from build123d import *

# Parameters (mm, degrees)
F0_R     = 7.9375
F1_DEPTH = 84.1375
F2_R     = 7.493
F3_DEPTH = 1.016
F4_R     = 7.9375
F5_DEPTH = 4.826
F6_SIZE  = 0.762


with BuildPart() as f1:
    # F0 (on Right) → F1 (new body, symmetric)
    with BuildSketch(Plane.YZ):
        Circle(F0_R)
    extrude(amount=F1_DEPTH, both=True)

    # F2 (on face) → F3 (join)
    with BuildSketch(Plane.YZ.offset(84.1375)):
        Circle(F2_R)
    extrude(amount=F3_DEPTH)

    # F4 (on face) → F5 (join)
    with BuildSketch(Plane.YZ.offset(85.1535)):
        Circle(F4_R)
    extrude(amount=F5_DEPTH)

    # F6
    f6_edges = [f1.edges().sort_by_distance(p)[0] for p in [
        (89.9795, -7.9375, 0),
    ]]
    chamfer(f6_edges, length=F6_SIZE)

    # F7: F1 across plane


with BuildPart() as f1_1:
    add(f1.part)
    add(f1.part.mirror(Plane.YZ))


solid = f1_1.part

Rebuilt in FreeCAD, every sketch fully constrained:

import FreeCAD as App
import Part
import Sketcher

V = App.Vector
Q = App.Units.Quantity


def edges_at(feature, points):
    """Names of the edges that pass closest to the given points."""
    edges = feature.Shape.Edges
    near = lambda p: min(range(len(edges)), key=lambda i: edges[i].distToShape(Part.Vertex(*p))[0])
    return sorted({f"Edge{near(p) + 1}" for p in points})

doc = App.newDocument("Part")
body = doc.addObject("PartDesign::Body", "Body")

sketch1 = body.newObject("Sketcher::SketchObject", "Sketch")
sketch1.AttachmentSupport = (doc.getObject("YZ_Plane"), [""])
sketch1.MapMode = "FlatFace"
sketch1.addGeometry(Part.Circle(V(0, 0, 0), V(0, 0, 1), 8), False)
sketch1.addConstraint(Sketcher.Constraint("Coincident", 0, 3, -1, 1))
sketch1.addConstraint(Sketcher.Constraint("Diameter", 0, Q("0.625 in")))
pad1 = body.newObject("PartDesign::Pad", "Pad")
pad1.Profile = sketch1
pad1.Length = Q("6.625 in")
pad1.Midplane = True

sketch2 = body.newObject("Sketcher::SketchObject", "Sketch001")
sketch2.AttachmentSupport = (doc.getObject("YZ_Plane"), [""])
sketch2.MapMode = "FlatFace"
sketch2.AttachmentOffset = App.Placement(V(0, 0, 3.3125 * 25.4), App.Rotation())
sketch2.addGeometry(Part.Circle(V(0, 0, 0), V(0, 0, 1), 7), False)
sketch2.addConstraint(Sketcher.Constraint("Coincident", 0, 3, -1, 1))
sketch2.addConstraint(Sketcher.Constraint("Diameter", 0, Q("0.59 in")))
pad2 = body.newObject("PartDesign::Pad", "Pad001")
pad2.Profile = sketch2
pad2.Length = Q("0.04 in")

sketch3 = body.newObject("Sketcher::SketchObject", "Sketch002")
sketch3.AttachmentSupport = (doc.getObject("YZ_Plane"), [""])
sketch3.MapMode = "FlatFace"
sketch3.AttachmentOffset = App.Placement(V(0, 0, 3.3525 * 25.4), App.Rotation())
sketch3.addGeometry(Part.Circle(V(0, 0, 0), V(0, 0, 1), 8), False)
sketch3.addConstraint(Sketcher.Constraint("Coincident", 0, 3, -1, 1))
sketch3.addConstraint(Sketcher.Constraint("Diameter", 0, Q("0.625 in")))
pad3 = body.newObject("PartDesign::Pad", "Pad002")
pad3.Profile = sketch3
pad3.Length = Q("0.19 in")
doc.recompute()

chamfer = body.newObject("PartDesign::Chamfer", "Chamfer")
chamfer.Base = (pad3, edges_at(pad3, [(89.98, -7.938, 0)]))
chamfer.Size = Q("0.03 in")
body2 = doc.addObject("PartDesign::Body", "Body001")
doc.recompute()

body2.BaseFeature = body
doc.recompute()

mirroring = doc.addObject("Part::Mirroring", "Mirroring")
mirroring.Source = body
mirroring.Base = V(0, 0, 0)
mirroring.Normal = V(1, 0, 0)
body3 = doc.addObject("PartDesign::Body", "Body002")
body3.BaseFeature = mirroring
boolean = body2.newObject("PartDesign::Boolean", "Boolean")
boolean.Type = "Fuse"
boolean.addObjects([body3])
doc.recompute()
mirroring.Visibility = False

doc.recompute()
